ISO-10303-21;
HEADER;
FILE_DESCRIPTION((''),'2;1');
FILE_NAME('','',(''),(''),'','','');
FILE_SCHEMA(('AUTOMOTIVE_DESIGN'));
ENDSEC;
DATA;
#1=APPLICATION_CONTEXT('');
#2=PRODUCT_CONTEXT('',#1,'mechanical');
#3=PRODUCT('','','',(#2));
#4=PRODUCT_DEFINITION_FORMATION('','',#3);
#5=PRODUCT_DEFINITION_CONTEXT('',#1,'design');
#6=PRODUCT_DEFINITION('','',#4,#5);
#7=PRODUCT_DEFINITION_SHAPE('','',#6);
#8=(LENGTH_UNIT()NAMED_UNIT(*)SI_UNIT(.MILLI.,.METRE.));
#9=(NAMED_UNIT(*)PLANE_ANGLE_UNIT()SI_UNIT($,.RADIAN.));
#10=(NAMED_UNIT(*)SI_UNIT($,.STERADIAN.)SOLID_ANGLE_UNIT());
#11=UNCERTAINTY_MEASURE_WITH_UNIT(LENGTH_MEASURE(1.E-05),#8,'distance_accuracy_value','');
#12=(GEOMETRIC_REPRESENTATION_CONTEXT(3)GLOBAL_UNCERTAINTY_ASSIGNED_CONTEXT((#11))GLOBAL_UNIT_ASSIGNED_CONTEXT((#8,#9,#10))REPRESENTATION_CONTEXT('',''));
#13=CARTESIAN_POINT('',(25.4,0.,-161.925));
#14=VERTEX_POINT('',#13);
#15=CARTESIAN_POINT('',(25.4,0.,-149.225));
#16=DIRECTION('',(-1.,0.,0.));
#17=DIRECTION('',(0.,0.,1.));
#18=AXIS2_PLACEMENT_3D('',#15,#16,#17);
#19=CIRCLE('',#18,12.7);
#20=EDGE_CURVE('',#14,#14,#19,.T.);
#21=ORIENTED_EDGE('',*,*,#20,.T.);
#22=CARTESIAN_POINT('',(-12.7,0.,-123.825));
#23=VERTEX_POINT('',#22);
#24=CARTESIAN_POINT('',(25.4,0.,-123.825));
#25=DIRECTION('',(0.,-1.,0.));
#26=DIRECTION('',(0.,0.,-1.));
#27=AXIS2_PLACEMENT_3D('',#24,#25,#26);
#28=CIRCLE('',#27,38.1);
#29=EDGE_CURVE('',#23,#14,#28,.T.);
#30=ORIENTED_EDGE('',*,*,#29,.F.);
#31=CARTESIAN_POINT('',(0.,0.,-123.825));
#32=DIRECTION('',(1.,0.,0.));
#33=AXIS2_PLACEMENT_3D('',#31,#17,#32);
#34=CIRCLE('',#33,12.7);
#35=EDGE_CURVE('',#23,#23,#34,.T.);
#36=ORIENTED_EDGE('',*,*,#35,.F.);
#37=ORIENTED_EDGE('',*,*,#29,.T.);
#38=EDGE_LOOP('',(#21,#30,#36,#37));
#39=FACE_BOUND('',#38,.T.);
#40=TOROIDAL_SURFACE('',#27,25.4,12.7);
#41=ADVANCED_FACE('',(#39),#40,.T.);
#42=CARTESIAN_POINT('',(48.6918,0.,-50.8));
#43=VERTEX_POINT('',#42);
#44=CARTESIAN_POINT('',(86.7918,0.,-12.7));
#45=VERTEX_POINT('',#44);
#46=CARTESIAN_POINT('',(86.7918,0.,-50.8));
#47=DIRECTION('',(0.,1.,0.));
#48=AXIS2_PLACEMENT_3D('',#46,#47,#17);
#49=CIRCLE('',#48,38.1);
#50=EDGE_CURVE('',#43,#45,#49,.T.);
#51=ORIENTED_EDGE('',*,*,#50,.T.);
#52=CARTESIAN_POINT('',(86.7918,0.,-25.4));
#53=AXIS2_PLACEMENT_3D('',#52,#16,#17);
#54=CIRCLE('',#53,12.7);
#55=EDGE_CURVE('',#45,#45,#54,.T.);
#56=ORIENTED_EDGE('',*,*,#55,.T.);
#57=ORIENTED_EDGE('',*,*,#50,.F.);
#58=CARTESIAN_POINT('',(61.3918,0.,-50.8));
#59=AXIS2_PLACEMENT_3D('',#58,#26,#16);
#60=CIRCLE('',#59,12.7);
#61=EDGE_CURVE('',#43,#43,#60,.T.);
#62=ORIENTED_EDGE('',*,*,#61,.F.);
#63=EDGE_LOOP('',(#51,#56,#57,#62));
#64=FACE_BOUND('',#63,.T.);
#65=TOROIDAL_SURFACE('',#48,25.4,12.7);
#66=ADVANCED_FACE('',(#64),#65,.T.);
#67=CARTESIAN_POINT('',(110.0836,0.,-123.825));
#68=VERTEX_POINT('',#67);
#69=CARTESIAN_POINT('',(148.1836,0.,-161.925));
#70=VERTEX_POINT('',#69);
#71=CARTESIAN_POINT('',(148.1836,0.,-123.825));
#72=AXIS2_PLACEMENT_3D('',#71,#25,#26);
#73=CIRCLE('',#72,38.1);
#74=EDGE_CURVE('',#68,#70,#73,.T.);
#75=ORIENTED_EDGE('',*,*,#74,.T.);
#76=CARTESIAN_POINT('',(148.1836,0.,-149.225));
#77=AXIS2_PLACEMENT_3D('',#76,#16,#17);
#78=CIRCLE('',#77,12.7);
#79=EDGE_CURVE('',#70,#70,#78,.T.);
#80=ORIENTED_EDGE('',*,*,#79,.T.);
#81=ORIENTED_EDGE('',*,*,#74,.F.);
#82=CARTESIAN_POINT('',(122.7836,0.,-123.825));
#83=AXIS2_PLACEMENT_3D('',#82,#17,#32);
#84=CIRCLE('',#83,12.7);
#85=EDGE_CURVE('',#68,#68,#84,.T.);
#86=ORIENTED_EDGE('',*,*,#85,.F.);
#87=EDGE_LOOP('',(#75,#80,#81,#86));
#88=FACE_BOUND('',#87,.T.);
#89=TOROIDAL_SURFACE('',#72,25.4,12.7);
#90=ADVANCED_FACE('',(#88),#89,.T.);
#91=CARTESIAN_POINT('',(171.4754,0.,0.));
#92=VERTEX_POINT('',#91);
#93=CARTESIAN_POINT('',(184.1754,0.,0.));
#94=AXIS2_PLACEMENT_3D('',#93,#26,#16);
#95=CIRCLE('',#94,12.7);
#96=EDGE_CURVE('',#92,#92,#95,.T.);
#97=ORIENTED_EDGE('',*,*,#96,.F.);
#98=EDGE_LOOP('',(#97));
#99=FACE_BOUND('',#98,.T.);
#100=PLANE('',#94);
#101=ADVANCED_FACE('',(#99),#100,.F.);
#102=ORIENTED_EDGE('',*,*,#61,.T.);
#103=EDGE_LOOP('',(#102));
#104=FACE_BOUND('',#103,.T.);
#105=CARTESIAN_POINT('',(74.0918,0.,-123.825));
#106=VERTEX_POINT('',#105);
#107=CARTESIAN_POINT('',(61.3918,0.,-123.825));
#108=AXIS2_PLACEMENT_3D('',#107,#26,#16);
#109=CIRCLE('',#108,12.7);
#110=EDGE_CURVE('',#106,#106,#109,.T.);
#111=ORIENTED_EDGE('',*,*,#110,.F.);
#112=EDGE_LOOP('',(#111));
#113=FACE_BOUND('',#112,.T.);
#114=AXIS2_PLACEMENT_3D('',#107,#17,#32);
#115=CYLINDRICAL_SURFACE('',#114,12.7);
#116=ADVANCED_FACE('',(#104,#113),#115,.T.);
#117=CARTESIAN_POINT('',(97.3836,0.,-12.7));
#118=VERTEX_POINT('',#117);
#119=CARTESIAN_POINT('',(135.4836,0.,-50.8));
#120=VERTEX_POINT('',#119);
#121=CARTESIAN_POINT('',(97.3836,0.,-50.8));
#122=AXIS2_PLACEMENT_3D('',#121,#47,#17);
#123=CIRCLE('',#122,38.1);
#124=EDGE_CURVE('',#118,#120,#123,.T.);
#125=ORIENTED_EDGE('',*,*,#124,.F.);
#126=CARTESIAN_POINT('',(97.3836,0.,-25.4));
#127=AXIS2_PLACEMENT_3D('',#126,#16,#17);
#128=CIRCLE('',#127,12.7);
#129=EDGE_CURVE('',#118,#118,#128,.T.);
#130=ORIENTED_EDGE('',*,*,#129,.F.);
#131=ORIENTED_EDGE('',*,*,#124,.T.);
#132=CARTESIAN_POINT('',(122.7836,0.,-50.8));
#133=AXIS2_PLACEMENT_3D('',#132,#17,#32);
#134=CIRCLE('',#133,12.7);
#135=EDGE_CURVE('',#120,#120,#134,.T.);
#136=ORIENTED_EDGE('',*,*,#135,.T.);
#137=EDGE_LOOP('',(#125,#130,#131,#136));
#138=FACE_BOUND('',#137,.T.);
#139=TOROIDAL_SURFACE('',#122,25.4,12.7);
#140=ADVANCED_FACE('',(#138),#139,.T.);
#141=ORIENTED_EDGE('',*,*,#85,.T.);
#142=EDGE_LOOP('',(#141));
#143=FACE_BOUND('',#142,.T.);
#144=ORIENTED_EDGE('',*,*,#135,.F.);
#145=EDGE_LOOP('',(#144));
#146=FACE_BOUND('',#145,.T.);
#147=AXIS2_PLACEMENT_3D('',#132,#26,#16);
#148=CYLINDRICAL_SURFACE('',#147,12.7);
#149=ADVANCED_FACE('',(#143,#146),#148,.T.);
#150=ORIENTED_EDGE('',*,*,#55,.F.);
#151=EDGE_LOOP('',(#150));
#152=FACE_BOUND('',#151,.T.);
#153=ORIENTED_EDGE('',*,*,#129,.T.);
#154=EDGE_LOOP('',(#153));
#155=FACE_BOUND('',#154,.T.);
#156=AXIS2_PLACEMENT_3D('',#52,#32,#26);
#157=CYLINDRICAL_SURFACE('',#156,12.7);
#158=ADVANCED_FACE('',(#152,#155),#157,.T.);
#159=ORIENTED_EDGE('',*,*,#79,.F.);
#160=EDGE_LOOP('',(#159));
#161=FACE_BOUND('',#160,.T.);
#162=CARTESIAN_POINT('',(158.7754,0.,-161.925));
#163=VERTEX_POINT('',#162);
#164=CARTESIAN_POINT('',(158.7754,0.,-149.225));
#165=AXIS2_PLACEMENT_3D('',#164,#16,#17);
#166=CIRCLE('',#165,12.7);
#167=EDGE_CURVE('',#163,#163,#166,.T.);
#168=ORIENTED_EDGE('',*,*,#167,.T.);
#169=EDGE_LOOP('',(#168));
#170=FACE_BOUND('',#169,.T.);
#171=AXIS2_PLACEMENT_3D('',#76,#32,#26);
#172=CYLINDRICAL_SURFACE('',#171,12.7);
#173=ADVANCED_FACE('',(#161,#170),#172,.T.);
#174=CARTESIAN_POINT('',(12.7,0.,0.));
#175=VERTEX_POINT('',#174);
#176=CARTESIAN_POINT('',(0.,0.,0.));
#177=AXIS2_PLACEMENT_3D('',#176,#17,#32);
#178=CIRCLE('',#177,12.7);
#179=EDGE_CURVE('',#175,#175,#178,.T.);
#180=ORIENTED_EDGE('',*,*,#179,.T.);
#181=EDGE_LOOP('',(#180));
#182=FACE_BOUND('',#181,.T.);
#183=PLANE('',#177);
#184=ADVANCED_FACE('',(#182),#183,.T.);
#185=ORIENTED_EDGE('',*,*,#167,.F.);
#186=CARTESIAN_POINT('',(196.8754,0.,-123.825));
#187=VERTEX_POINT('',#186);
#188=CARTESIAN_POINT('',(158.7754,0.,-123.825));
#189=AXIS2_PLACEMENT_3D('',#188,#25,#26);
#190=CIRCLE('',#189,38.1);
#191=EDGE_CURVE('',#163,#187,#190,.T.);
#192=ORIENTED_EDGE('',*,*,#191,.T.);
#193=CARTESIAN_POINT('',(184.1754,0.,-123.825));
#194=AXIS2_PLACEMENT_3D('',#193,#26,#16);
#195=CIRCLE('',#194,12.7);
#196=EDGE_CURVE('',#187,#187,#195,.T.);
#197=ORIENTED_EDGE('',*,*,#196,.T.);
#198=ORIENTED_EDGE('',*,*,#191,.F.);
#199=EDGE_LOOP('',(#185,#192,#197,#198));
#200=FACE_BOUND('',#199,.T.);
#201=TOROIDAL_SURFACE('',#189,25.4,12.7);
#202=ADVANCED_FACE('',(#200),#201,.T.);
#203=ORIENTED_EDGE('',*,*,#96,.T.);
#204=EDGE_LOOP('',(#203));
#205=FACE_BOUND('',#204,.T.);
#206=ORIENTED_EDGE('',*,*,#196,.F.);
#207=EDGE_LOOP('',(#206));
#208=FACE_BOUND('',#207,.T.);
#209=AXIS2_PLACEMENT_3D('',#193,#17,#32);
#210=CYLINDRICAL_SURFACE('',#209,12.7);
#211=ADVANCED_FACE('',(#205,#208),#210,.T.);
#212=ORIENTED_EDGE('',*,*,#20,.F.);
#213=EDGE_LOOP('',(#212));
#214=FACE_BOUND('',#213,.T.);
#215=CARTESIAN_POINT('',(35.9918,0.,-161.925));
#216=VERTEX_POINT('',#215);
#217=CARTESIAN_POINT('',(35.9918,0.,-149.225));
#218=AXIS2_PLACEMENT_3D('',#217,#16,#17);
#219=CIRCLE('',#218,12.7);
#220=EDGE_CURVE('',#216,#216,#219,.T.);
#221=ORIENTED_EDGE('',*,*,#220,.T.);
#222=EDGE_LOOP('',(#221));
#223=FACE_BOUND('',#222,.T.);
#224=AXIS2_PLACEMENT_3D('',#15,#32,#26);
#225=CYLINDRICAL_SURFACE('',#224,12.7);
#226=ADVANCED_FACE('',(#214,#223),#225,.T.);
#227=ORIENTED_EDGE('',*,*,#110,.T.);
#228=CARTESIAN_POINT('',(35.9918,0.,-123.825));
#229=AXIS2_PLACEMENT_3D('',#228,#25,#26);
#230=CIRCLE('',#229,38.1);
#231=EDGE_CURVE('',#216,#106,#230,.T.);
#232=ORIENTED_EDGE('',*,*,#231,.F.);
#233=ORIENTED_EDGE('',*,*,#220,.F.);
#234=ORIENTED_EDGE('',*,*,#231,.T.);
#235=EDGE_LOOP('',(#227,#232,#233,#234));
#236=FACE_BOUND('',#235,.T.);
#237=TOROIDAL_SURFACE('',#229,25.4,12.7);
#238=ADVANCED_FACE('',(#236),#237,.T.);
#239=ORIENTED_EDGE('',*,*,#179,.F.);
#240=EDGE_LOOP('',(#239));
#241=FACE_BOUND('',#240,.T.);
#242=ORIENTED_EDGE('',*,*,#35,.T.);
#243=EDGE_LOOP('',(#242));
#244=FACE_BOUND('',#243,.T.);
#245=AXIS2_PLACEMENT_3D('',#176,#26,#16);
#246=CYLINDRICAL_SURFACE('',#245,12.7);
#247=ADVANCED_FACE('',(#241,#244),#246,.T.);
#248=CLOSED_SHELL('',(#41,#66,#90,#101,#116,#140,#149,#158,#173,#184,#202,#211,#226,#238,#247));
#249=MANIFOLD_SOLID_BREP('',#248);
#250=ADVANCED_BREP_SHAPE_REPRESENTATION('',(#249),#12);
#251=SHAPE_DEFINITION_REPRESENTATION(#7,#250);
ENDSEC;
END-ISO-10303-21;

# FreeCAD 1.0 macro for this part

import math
import FreeCAD as App
import Part
import Sketcher
Q = App.Units.Quantity

doc = App.newDocument("Part")
params = doc.addObject("Spreadsheet::Sheet", "Params")
for row, (alias, value) in enumerate([
    ("sketch1_diameter", "1 in"),
    ("sketch2_radius", "1 in"),
    ("sketch2_width", "0.417 in"),
    ("sketch2_height", "4.875 in"),
], start=1):
    params.set(f"A{row}", alias)
    params.set(f"B{row}", "=" + value)
    params.setAlias(f"B{row}", alias)

body = doc.addObject("PartDesign::Body", "Body")

sketch1 = doc.addObject("Sketcher::SketchObject", "Sketch")
body.addObject(sketch1)
sketch1.AttachmentSupport = (doc.XY_Plane, [""])
sketch1.MapMode = "FlatFace"
sketch1.addGeometry(Part.Circle(App.Vector(0, 0, 0), App.Vector(0, 0, 1), 13), False)
sketch1.addConstraint([
    Sketcher.Constraint("Coincident", 0, 3, -1, 1),
    Sketcher.Constraint("Diameter", 0, Q("1 in")),
])
sketch1.setExpression("Constraints[1]", "Params.sketch1_diameter")

sketch2 = doc.addObject("Sketcher::SketchObject", "Sketch001")
body.addObject(sketch2)
sketch2.AttachmentSupport = (doc.XZ_Plane, [""])
sketch2.MapMode = "FlatFace"
sketch2.addGeometry([
    Part.LineSegment(App.Vector(0, 0, 0), App.Vector(0, -124, 0)),
    Part.ArcOfCircle(Part.Circle(App.Vector(25, -124, 0), App.Vector(0, 0, 1), 25), math.radians(180), math.radians(270)),
    Part.LineSegment(App.Vector(25, -149, 0), App.Vector(36, -149, 0)),
    Part.ArcOfCircle(Part.Circle(App.Vector(36, -124, 0), App.Vector(0, 0, 1), 25), math.radians(-90), math.radians(0)),
    Part.LineSegment(App.Vector(61, -124, 0), App.Vector(61, -51, 0)),
    Part.ArcOfCircle(Part.Circle(App.Vector(87, -51, 0), App.Vector(0, 0, 1), 25), math.radians(90), math.radians(180)),
    Part.LineSegment(App.Vector(87, -25, 0), App.Vector(97, -25, 0)),
    Part.ArcOfCircle(Part.Circle(App.Vector(97, -51, 0), App.Vector(0, 0, 1), 25), math.radians(0), math.radians(90)),
    Part.LineSegment(App.Vector(123, -51, 0), App.Vector(123, -124, 0)),
    Part.ArcOfCircle(Part.Circle(App.Vector(148, -124, 0), App.Vector(0, 0, 1), 25), math.radians(180), math.radians(270)),
    Part.LineSegment(App.Vector(148, -149, 0), App.Vector(159, -149, 0)),
    Part.ArcOfCircle(Part.Circle(App.Vector(159, -124, 0), App.Vector(0, 0, 1), 25), math.radians(-90), math.radians(0)),
    Part.LineSegment(App.Vector(184, -124, 0), App.Vector(184, 0, 0)),
], False)
sketch2.addConstraint([
    Sketcher.Constraint("Tangent", 0, 2, 1, 1),
    Sketcher.Constraint("Tangent", 1, 2, 2, 1),
    Sketcher.Constraint("Tangent", 2, 2, 3, 1),
    Sketcher.Constraint("Tangent", 3, 2, 4, 1),
    Sketcher.Constraint("Tangent", 4, 2, 5, 2),
    Sketcher.Constraint("Tangent", 5, 1, 6, 1),
    Sketcher.Constraint("Tangent", 6, 2, 7, 2),
    Sketcher.Constraint("Tangent", 7, 1, 8, 1),
    Sketcher.Constraint("Tangent", 8, 2, 9, 1),
    Sketcher.Constraint("Tangent", 9, 2, 10, 1),
    Sketcher.Constraint("Tangent", 10, 2, 11, 1),
    Sketcher.Constraint("Tangent", 11, 2, 12, 1),
    Sketcher.Constraint("Vertical", 0),
    Sketcher.Constraint("Horizontal", 2),
    Sketcher.Constraint("Vertical", 4),
    Sketcher.Constraint("Horizontal", 6),
    Sketcher.Constraint("Vertical", 8),
    Sketcher.Constraint("Horizontal", 10),
    Sketcher.Constraint("Vertical", 12),
    Sketcher.Constraint("Coincident", 0, 1, -1, 1),
    Sketcher.Constraint("Equal", 1, 3),
    Sketcher.Constraint("Equal", 3, 5),
    Sketcher.Constraint("Equal", 5, 7),
    Sketcher.Constraint("Equal", 7, 9),
    Sketcher.Constraint("Equal", 9, 11),
    Sketcher.Constraint("PointOnObject", 12, 2, -1),
    Sketcher.Constraint("Horizontal", 3, 3, 9, 3),
    Sketcher.Constraint("Equal", 2, 6),
    Sketcher.Constraint("Equal", 6, 10),
    Sketcher.Constraint("Radius", 1, Q("1 in")),
    Sketcher.Constraint("DistanceY", 5, 3, -1, 1, Q("2 in")),
    Sketcher.Constraint("DistanceX", 2, 1, 2, 2, Q("0.417 in")),
    Sketcher.Constraint("DistanceY", 0, 2, 0, 1, Q("4.875 in")),
])
sketch2.setExpression("Constraints[29]", "Params.sketch2_radius")
sketch2.setExpression("Constraints[31]", "Params.sketch2_width")
sketch2.setExpression("Constraints[32]", "Params.sketch2_height")
doc.recompute()

additivepipe = doc.addObject("PartDesign::AdditivePipe", "AdditivePipe")
body.addObject(additivepipe)
additivepipe.Profile = sketch1
additivepipe.Spine = (sketch2, ["Edge1", "Edge2", "Edge3", "Edge4", "Edge5", "Edge6", "Edge7", "Edge8", "Edge9", "Edge10", "Edge11", "Edge12", "Edge13"])

doc.recompute()
